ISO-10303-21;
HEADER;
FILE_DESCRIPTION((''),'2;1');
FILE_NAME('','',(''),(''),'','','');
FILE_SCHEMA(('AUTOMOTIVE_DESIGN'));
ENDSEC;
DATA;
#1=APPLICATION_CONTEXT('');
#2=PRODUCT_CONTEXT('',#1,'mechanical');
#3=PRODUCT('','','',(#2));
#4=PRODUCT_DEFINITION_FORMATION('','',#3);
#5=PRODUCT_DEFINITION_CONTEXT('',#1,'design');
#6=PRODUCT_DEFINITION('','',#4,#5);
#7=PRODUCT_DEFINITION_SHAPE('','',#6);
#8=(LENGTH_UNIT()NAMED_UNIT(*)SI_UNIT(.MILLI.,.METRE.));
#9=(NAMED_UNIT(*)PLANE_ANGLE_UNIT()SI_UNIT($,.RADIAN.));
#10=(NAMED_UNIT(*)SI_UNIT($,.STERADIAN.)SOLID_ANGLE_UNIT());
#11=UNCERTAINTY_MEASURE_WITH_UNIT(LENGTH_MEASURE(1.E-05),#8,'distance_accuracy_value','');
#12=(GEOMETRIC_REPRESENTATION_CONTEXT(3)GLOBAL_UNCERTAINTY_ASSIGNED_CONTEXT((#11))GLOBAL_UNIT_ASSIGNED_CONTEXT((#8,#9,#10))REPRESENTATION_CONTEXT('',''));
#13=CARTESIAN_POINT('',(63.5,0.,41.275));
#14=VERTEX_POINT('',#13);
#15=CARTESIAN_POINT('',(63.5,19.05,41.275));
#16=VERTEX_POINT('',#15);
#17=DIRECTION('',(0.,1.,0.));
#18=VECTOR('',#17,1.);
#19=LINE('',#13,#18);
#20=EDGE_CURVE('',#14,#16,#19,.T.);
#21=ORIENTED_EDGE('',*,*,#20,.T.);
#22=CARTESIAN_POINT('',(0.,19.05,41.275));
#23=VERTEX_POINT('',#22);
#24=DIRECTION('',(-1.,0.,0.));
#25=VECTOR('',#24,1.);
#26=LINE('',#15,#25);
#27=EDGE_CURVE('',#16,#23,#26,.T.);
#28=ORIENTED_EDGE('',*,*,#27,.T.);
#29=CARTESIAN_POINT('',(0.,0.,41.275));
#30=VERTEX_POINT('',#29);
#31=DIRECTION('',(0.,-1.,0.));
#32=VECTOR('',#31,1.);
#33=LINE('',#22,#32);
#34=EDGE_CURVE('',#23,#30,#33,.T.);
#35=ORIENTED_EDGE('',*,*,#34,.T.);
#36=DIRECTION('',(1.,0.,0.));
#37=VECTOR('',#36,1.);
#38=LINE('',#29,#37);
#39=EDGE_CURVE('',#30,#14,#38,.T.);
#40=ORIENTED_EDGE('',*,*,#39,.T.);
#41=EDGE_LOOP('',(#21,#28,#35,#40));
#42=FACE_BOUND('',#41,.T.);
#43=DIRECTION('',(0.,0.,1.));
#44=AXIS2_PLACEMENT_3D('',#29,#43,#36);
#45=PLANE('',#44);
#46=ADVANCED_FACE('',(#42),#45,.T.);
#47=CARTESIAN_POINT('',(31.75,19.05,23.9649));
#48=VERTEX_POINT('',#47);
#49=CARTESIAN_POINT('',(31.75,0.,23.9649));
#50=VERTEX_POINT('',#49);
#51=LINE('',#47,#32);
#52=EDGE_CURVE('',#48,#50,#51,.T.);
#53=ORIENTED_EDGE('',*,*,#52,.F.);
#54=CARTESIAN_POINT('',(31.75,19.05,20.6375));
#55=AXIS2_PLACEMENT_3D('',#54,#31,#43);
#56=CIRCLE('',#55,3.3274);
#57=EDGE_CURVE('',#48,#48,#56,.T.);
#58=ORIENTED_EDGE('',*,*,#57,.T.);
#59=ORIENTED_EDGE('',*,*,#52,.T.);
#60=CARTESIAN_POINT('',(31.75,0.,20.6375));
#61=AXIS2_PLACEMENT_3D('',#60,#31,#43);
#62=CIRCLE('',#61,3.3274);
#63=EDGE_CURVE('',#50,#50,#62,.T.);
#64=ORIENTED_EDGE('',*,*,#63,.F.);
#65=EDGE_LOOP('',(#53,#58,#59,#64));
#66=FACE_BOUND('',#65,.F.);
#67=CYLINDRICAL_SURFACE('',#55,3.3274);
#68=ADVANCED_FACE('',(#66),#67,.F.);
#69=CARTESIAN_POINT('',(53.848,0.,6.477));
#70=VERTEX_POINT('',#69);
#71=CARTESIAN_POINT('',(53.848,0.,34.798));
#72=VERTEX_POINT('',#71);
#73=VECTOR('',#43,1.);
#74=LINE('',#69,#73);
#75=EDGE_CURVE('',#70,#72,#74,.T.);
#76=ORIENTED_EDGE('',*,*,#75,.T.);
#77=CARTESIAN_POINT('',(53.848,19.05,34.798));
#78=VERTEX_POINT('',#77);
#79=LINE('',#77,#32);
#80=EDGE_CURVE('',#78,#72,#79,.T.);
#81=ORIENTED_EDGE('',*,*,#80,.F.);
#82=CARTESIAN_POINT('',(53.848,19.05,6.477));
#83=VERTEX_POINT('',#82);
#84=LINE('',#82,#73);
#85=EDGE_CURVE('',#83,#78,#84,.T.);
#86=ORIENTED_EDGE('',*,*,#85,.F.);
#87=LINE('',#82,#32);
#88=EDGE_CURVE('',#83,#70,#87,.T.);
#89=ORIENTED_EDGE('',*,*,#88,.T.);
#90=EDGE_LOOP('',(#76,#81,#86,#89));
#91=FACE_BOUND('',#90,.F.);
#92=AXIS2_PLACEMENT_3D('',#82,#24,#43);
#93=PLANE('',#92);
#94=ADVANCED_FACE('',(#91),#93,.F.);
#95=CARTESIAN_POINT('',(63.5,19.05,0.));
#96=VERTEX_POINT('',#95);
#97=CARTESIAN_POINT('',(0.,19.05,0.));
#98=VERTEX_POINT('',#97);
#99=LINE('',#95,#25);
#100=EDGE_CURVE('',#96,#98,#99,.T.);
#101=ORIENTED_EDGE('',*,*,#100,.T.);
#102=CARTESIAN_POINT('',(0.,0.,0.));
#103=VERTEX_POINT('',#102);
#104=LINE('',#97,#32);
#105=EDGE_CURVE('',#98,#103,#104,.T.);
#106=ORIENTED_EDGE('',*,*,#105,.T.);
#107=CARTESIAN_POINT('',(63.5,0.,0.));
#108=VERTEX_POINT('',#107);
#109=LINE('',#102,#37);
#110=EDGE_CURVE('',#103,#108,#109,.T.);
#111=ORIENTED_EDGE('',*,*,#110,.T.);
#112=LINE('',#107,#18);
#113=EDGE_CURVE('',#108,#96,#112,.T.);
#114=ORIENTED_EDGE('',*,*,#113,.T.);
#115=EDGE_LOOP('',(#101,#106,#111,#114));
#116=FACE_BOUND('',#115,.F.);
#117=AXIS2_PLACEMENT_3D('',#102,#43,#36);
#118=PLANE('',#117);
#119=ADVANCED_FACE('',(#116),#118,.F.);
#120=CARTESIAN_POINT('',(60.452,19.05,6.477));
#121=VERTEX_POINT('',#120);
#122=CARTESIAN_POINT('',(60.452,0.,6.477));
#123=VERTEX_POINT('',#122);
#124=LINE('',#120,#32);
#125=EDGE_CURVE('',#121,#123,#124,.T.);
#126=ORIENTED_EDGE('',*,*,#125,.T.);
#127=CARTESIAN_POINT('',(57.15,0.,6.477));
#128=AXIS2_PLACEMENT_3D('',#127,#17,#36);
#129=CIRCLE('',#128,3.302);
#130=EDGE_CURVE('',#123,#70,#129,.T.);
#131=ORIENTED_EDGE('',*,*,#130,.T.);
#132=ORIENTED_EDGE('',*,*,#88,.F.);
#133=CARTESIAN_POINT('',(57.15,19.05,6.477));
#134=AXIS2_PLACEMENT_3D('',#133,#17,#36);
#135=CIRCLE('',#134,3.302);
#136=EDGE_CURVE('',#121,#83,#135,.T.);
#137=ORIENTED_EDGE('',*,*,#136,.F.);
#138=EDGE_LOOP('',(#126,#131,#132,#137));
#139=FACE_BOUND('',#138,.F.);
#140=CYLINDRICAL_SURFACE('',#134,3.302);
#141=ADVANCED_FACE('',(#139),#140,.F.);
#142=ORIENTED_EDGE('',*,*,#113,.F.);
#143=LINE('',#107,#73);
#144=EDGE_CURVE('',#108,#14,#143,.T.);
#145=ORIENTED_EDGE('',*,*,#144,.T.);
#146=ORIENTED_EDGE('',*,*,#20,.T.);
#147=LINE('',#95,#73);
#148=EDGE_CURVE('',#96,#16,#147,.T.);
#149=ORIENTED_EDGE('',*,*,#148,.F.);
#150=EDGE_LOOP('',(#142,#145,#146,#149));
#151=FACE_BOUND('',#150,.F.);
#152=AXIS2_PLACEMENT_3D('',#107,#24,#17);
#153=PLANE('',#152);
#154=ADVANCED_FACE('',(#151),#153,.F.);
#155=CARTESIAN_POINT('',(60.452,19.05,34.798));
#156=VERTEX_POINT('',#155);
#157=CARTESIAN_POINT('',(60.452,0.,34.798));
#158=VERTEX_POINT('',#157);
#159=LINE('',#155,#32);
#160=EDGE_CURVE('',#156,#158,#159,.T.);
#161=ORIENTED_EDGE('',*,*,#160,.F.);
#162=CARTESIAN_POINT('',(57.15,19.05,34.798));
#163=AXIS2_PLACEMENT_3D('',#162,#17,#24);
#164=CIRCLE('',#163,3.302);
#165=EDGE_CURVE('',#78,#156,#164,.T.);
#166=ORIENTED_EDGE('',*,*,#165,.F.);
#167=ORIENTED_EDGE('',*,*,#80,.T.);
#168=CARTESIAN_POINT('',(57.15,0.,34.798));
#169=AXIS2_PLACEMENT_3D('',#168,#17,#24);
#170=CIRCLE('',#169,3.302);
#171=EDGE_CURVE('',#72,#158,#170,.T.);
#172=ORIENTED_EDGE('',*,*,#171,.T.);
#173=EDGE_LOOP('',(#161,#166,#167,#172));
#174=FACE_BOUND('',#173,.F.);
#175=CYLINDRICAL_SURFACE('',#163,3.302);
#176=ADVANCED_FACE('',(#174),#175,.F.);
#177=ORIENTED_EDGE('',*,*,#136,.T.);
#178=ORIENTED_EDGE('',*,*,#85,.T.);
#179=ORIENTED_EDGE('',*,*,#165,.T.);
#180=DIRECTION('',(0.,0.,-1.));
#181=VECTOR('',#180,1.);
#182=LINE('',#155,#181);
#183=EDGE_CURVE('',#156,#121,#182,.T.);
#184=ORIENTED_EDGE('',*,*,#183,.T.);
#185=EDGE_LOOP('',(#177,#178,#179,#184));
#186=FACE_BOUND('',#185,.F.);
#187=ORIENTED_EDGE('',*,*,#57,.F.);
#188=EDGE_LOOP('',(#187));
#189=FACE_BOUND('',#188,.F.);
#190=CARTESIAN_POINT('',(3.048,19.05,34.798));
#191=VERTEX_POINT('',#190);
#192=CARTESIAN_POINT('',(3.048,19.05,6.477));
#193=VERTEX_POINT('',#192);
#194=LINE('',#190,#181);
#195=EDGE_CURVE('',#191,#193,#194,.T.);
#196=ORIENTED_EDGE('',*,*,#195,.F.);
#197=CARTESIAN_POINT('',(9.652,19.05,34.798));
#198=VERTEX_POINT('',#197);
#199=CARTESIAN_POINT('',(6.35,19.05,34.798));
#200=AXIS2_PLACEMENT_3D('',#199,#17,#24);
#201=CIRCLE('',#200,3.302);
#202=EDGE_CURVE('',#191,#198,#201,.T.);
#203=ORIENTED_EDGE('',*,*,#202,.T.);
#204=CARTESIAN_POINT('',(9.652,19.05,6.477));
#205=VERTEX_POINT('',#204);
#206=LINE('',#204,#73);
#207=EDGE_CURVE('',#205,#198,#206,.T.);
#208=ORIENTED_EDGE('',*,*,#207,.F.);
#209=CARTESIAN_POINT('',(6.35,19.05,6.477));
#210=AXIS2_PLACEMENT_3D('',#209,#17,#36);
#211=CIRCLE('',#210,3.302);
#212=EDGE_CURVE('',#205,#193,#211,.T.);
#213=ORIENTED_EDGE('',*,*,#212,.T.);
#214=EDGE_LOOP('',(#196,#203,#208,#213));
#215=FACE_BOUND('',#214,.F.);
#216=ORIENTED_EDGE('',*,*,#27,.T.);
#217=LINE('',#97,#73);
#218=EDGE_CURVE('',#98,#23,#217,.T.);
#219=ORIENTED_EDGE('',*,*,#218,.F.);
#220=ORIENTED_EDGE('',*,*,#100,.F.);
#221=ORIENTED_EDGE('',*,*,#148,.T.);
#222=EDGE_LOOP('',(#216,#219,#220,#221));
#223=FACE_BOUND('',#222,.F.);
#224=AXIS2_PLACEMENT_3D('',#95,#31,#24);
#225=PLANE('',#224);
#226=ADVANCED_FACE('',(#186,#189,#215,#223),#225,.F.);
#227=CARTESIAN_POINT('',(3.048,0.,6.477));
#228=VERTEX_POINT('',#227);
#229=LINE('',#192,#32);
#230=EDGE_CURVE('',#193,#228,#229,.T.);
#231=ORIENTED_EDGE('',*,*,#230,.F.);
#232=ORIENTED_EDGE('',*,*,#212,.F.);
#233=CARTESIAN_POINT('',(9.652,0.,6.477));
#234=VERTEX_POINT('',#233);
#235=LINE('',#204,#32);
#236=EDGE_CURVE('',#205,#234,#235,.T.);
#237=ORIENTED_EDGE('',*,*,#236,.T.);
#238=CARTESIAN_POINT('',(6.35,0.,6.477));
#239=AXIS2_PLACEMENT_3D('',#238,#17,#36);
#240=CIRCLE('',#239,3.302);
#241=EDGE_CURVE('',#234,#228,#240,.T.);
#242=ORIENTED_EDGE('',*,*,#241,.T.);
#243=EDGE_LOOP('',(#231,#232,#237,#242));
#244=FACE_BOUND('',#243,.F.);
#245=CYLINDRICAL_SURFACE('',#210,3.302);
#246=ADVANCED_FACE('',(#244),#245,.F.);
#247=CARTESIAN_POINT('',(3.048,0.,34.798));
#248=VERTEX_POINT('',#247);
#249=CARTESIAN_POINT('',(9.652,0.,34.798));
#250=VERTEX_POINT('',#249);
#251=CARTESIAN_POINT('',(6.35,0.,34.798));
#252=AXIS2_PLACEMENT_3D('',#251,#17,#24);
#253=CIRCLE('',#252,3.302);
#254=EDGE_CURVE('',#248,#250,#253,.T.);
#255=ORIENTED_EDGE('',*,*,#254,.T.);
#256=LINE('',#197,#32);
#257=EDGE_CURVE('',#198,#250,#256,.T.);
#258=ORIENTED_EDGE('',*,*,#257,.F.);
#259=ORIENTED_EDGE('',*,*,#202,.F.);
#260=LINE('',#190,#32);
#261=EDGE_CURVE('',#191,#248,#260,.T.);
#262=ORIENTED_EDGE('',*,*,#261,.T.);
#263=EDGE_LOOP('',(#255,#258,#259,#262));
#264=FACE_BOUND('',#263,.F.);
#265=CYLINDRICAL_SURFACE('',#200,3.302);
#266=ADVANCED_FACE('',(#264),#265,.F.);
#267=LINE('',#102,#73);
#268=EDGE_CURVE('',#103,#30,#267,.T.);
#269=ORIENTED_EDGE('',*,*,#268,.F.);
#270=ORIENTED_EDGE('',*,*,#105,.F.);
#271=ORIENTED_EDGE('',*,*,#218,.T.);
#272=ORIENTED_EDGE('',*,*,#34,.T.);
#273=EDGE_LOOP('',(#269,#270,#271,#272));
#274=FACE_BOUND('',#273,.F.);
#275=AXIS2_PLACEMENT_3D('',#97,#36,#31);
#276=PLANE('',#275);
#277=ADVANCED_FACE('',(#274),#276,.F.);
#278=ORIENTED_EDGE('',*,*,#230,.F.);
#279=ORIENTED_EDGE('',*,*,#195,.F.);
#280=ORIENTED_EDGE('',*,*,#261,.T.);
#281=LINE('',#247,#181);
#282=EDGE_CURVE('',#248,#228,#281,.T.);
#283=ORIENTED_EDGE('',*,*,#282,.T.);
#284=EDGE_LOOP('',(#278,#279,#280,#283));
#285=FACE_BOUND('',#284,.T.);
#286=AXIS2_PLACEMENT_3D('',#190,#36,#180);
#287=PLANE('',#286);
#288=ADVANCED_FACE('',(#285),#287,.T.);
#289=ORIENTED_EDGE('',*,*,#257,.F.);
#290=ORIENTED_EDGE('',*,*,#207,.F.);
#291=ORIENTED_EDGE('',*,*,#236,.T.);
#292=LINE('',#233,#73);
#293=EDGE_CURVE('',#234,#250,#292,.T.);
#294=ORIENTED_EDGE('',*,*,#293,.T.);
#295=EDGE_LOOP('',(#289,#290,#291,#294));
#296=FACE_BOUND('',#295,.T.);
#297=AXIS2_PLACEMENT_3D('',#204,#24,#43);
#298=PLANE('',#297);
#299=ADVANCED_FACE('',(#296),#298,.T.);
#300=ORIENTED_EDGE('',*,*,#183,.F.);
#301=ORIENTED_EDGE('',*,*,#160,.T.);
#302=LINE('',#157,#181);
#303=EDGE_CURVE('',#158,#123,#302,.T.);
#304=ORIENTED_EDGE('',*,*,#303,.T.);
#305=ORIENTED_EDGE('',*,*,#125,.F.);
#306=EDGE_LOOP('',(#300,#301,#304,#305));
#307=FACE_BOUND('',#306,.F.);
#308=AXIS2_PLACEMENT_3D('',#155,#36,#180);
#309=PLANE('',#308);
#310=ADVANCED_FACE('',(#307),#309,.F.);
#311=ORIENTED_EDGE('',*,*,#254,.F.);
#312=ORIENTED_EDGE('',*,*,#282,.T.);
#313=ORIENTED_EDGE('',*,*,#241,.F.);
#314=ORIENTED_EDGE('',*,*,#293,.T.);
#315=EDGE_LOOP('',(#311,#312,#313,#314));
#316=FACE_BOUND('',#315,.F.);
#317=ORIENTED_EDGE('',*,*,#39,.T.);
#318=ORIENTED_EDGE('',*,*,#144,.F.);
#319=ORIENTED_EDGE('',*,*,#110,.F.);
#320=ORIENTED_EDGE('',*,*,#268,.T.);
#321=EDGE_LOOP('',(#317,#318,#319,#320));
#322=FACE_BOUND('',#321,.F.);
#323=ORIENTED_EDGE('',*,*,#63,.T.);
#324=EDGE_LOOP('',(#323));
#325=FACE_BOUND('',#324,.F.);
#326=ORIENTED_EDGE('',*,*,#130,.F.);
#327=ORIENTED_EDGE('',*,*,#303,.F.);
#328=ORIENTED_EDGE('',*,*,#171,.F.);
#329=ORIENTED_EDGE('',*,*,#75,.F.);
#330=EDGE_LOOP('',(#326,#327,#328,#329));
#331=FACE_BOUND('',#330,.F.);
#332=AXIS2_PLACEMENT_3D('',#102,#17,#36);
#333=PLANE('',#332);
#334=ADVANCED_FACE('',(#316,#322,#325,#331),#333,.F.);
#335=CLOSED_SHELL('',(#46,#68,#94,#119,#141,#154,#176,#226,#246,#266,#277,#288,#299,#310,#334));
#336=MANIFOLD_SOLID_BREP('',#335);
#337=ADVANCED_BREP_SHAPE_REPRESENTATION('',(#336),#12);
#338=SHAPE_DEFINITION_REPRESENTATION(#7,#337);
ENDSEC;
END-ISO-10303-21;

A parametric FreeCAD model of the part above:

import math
import FreeCAD as App
import Part
import Sketcher
Q = App.Units.Quantity

doc = App.newDocument("Part")
params = doc.addObject("Spreadsheet::Sheet", "Params")
for row, (alias, value) in enumerate([
    ("sketch1_width", "2.5 in"),
    ("sketch1_height", "0.75 in"),
    ("pad1_length", "1.625 in"),
    ("sketch2_diameter", "0.262 in"),
    ("hole_diameter", "0.262 in"),
    ("sketch3_radius", "0.13 in"),
    ("sketch3_height", "1.115 in"),
    ("pocket1_length", "0.75 in"),
], start=1):
    params.set(f"A{row}", alias)
    params.set(f"B{row}", "=" + value)
    params.setAlias(f"B{row}", alias)

body = doc.addObject("PartDesign::Body", "Body")

sketch1 = body.newObject("Sketcher::SketchObject", "Sketch")
sketch1.AttachmentSupport = (doc.getObject("XY_Plane"), [""])
sketch1.MapMode = "FlatFace"
sketch1.addGeometry(Part.LineSegment(App.Vector(0, 19, 0), App.Vector(0, 0, 0)), False)
sketch1.addGeometry(Part.LineSegment(App.Vector(0, 0, 0), App.Vector(64, 0, 0)), False)
sketch1.addGeometry(Part.LineSegment(App.Vector(64, 0, 0), App.Vector(64, 19, 0)), False)
sketch1.addGeometry(Part.LineSegment(App.Vector(64, 19, 0), App.Vector(0, 19, 0)), False)
sketch1.addConstraint(Sketcher.Constraint("Coincident", 0, 2, 1, 1))
sketch1.addConstraint(Sketcher.Constraint("Coincident", 1, 2, 2, 1))
sketch1.addConstraint(Sketcher.Constraint("Coincident", 2, 2, 3, 1))
sketch1.addConstraint(Sketcher.Constraint("Coincident", 3, 2, 0, 1))
sketch1.addConstraint(Sketcher.Constraint("Vertical", 0))
sketch1.addConstraint(Sketcher.Constraint("Horizontal", 1))
sketch1.addConstraint(Sketcher.Constraint("Vertical", 2))
sketch1.addConstraint(Sketcher.Constraint("Horizontal", 3))
sketch1.addConstraint(Sketcher.Constraint("Coincident", 0, 2, -1, 1))
sketch1.addConstraint(Sketcher.Constraint("DistanceX", 1, 1, 1, 2, Q("2.5 in")))
sketch1.addConstraint(Sketcher.Constraint("DistanceY", 0, 2, 0, 1, Q("0.75 in")))
sketch1.setExpression("Constraints[9]", "Params.sketch1_width")
sketch1.setExpression("Constraints[10]", "Params.sketch1_height")
pad1 = body.newObject("PartDesign::Pad", "Pad")
pad1.Profile = sketch1
pad1.setExpression("Length", "Params.pad1_length")

sketch2 = body.newObject("Sketcher::SketchObject", "Sketch001")
sketch2.AttachmentSupport = (doc.getObject("XZ_Plane"), [""])
sketch2.MapMode = "FlatFace"
sketch2.AttachmentOffset = App.Placement(App.Vector(0, 0, -0.75 * 25.4), App.Rotation())
sketch2.addGeometry(Part.Circle(App.Vector(31.8, 20.6, 0), App.Vector(0, 0, 1), 3.3), False)
sketch2.addConstraint(Sketcher.Constraint("Diameter", 0, Q("0.262 in")))
sketch2.addConstraint(Sketcher.Constraint("DistanceX", -1, 1, 0, 3, Q("1.25 in")))
sketch2.addConstraint(Sketcher.Constraint("DistanceY", -1, 1, 0, 3, Q("0.8125 in")))
sketch2.setExpression("Constraints[0]", "Params.sketch2_diameter")
doc.recompute()
hole = body.newObject("PartDesign::Hole", "Hole")
hole.Profile = sketch2
hole.ThreadType = "None"
hole.setExpression("Diameter", "Params.hole_diameter")
hole.DepthType = "ThroughAll"
hole.Reversed = True

sketch3 = body.newObject("Sketcher::SketchObject", "Sketch002")
sketch3.AttachmentSupport = (doc.getObject("XZ_Plane"), [""])
sketch3.MapMode = "FlatFace"
sketch3.AttachmentOffset = App.Placement(App.Vector(0, 0, -0.75 * 25.4), App.Rotation())
sketch3.addGeometry(Part.LineSegment(App.Vector(3, 6.5, 0), App.Vector(3, 34.8, 0)), False)
sketch3.addGeometry(Part.ArcOfCircle(Part.Circle(App.Vector(6.3, 34.8, 0), App.Vector(0, 0, 1), 3.3), math.radians(0), math.radians(180)), False)
sketch3.addGeometry(Part.LineSegment(App.Vector(9.7, 34.8, 0), App.Vector(9.7, 6.5, 0)), False)
sketch3.addGeometry(Part.ArcOfCircle(Part.Circle(App.Vector(6.3, 6.5, 0), App.Vector(0, 0, 1), 3.3), math.radians(180), math.radians(360)), False)
sketch3.addGeometry(Part.ArcOfCircle(Part.Circle(App.Vector(57.1, 34.8, 0), App.Vector(0, 0, 1), 3.3), math.radians(0), math.radians(180)), False)
sketch3.addGeometry(Part.LineSegment(App.Vector(60.5, 34.8, 0), App.Vector(60.5, 6.5, 0)), False)
sketch3.addGeometry(Part.ArcOfCircle(Part.Circle(App.Vector(57.1, 6.5, 0), App.Vector(0, 0, 1), 3.3), math.radians(180), math.radians(360)), False)
sketch3.addGeometry(Part.LineSegment(App.Vector(53.8, 6.5, 0), App.Vector(53.8, 34.8, 0)), False)
sketch3.addConstraint(Sketcher.Constraint("Tangent", 0, 2, 1, 2))
sketch3.addConstraint(Sketcher.Constraint("Tangent", 1, 1, 2, 1))
sketch3.addConstraint(Sketcher.Constraint("Tangent", 2, 2, 3, 2))
sketch3.addConstraint(Sketcher.Constraint("Tangent", 3, 1, 0, 1))
sketch3.addConstraint(Sketcher.Constraint("Tangent", 4, 1, 5, 1))
sketch3.addConstraint(Sketcher.Constraint("Tangent", 5, 2, 6, 2))
sketch3.addConstraint(Sketcher.Constraint("Tangent", 6, 1, 7, 1))
sketch3.addConstraint(Sketcher.Constraint("Tangent", 7, 2, 4, 2))
sketch3.addConstraint(Sketcher.Constraint("Vertical", 0))
sketch3.addConstraint(Sketcher.Constraint("Vertical", 2))
sketch3.addConstraint(Sketcher.Constraint("Vertical", 5))
sketch3.addConstraint(Sketcher.Constraint("Vertical", 7))
sketch3.addConstraint(Sketcher.Constraint("Equal", 3, 4))
sketch3.addConstraint(Sketcher.Constraint("Horizontal", 1, 3, 4, 3))
sketch3.addConstraint(Sketcher.Constraint("Horizontal", 3, 3, 6, 3))
sketch3.addConstraint(Sketcher.Constraint("Radius", 1, Q("0.13 in")))
sketch3.addConstraint(Sketcher.Constraint("DistanceX", 1, 3, 4, 3, Q("2 in")))
sketch3.addConstraint(Sketcher.Constraint("DistanceY", 0, 1, 0, 2, Q("1.115 in")))
sketch3.addConstraint(Sketcher.Constraint("DistanceX", -1, 1, 1, 3, Q("0.25 in")))
sketch3.addConstraint(Sketcher.Constraint("DistanceY", -1, 1, 1, 3, Q("1.37 in")))
sketch3.setExpression("Constraints[15]", "Params.sketch3_radius")
sketch3.setExpression("Constraints[17]", "Params.sketch3_height")
pocket1 = body.newObject("PartDesign::Pocket", "Pocket")
pocket1.Profile = sketch3
pocket1.setExpression("Length", "Params.pocket1_length")
pocket1.Reversed = True

doc.recompute()
